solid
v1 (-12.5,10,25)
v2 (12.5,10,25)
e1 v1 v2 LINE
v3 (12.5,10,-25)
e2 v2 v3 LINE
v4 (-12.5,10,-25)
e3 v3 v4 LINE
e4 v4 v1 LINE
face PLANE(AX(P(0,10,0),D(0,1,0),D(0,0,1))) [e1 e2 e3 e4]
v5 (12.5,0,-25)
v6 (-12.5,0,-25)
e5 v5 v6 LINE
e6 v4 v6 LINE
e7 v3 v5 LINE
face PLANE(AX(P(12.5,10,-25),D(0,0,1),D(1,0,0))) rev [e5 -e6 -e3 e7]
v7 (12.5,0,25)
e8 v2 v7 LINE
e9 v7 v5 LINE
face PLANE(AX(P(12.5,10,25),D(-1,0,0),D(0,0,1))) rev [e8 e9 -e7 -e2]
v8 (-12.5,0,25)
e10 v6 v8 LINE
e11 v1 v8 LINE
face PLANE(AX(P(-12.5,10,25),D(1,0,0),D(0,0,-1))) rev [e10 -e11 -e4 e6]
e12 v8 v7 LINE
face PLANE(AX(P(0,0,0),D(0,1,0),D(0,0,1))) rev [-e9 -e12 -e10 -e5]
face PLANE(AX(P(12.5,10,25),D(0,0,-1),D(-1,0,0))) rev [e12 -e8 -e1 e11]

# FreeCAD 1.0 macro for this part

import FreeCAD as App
import Part
import Sketcher

V = App.Vector
Q = App.Units.Quantity


def add_polygon(sketch, points):
    """Adds a closed chain of lines whose ends are joined by coincident constraints."""
    first, n = sketch.GeometryCount, len(points)
    for a, b in zip(points, points[1:] + points[:1]):
        sketch.addGeometry(Part.LineSegment(App.Vector(*a, 0), App.Vector(*b, 0)), False)
    for i in range(n):
        sketch.addConstraint(Sketcher.Constraint("Coincident", first + i, 2, first + (i + 1) % n, 1))

doc = App.newDocument("Part")
body = doc.addObject("PartDesign::Body", "Body")

# Sketch on XZ plane
sketch1 = body.newObject("Sketcher::SketchObject", "Sketch")
sketch1.AttachmentSupport = (doc.getObject("XZ_Plane"), [""])
sketch1.MapMode = "FlatFace"
add_polygon(sketch1, [(-12.5, -25), (-12.5, 25), (12.5, 25), (12.5, -25)])  # lines 0-3
sketch1.addConstraint(Sketcher.Constraint("Vertical", 0))
sketch1.addConstraint(Sketcher.Constraint("Horizontal", 1))
sketch1.addConstraint(Sketcher.Constraint("Vertical", 2))
sketch1.addConstraint(Sketcher.Constraint("Horizontal", 3))
sketch1.addConstraint(Sketcher.Constraint("Symmetric", 0, 2, 2, 2, -1, 1))
sketch1.addConstraint(Sketcher.Constraint("DistanceX", 1, 1, 1, 2, Q("25 mm")))
sketch1.addConstraint(Sketcher.Constraint("DistanceY", 0, 1, 0, 2, Q("50 mm")))
pad1 = body.newObject("PartDesign::Pad", "Pad")
pad1.Profile = sketch1
pad1.Length = 10
pad1.Reversed = True

doc.recompute()
